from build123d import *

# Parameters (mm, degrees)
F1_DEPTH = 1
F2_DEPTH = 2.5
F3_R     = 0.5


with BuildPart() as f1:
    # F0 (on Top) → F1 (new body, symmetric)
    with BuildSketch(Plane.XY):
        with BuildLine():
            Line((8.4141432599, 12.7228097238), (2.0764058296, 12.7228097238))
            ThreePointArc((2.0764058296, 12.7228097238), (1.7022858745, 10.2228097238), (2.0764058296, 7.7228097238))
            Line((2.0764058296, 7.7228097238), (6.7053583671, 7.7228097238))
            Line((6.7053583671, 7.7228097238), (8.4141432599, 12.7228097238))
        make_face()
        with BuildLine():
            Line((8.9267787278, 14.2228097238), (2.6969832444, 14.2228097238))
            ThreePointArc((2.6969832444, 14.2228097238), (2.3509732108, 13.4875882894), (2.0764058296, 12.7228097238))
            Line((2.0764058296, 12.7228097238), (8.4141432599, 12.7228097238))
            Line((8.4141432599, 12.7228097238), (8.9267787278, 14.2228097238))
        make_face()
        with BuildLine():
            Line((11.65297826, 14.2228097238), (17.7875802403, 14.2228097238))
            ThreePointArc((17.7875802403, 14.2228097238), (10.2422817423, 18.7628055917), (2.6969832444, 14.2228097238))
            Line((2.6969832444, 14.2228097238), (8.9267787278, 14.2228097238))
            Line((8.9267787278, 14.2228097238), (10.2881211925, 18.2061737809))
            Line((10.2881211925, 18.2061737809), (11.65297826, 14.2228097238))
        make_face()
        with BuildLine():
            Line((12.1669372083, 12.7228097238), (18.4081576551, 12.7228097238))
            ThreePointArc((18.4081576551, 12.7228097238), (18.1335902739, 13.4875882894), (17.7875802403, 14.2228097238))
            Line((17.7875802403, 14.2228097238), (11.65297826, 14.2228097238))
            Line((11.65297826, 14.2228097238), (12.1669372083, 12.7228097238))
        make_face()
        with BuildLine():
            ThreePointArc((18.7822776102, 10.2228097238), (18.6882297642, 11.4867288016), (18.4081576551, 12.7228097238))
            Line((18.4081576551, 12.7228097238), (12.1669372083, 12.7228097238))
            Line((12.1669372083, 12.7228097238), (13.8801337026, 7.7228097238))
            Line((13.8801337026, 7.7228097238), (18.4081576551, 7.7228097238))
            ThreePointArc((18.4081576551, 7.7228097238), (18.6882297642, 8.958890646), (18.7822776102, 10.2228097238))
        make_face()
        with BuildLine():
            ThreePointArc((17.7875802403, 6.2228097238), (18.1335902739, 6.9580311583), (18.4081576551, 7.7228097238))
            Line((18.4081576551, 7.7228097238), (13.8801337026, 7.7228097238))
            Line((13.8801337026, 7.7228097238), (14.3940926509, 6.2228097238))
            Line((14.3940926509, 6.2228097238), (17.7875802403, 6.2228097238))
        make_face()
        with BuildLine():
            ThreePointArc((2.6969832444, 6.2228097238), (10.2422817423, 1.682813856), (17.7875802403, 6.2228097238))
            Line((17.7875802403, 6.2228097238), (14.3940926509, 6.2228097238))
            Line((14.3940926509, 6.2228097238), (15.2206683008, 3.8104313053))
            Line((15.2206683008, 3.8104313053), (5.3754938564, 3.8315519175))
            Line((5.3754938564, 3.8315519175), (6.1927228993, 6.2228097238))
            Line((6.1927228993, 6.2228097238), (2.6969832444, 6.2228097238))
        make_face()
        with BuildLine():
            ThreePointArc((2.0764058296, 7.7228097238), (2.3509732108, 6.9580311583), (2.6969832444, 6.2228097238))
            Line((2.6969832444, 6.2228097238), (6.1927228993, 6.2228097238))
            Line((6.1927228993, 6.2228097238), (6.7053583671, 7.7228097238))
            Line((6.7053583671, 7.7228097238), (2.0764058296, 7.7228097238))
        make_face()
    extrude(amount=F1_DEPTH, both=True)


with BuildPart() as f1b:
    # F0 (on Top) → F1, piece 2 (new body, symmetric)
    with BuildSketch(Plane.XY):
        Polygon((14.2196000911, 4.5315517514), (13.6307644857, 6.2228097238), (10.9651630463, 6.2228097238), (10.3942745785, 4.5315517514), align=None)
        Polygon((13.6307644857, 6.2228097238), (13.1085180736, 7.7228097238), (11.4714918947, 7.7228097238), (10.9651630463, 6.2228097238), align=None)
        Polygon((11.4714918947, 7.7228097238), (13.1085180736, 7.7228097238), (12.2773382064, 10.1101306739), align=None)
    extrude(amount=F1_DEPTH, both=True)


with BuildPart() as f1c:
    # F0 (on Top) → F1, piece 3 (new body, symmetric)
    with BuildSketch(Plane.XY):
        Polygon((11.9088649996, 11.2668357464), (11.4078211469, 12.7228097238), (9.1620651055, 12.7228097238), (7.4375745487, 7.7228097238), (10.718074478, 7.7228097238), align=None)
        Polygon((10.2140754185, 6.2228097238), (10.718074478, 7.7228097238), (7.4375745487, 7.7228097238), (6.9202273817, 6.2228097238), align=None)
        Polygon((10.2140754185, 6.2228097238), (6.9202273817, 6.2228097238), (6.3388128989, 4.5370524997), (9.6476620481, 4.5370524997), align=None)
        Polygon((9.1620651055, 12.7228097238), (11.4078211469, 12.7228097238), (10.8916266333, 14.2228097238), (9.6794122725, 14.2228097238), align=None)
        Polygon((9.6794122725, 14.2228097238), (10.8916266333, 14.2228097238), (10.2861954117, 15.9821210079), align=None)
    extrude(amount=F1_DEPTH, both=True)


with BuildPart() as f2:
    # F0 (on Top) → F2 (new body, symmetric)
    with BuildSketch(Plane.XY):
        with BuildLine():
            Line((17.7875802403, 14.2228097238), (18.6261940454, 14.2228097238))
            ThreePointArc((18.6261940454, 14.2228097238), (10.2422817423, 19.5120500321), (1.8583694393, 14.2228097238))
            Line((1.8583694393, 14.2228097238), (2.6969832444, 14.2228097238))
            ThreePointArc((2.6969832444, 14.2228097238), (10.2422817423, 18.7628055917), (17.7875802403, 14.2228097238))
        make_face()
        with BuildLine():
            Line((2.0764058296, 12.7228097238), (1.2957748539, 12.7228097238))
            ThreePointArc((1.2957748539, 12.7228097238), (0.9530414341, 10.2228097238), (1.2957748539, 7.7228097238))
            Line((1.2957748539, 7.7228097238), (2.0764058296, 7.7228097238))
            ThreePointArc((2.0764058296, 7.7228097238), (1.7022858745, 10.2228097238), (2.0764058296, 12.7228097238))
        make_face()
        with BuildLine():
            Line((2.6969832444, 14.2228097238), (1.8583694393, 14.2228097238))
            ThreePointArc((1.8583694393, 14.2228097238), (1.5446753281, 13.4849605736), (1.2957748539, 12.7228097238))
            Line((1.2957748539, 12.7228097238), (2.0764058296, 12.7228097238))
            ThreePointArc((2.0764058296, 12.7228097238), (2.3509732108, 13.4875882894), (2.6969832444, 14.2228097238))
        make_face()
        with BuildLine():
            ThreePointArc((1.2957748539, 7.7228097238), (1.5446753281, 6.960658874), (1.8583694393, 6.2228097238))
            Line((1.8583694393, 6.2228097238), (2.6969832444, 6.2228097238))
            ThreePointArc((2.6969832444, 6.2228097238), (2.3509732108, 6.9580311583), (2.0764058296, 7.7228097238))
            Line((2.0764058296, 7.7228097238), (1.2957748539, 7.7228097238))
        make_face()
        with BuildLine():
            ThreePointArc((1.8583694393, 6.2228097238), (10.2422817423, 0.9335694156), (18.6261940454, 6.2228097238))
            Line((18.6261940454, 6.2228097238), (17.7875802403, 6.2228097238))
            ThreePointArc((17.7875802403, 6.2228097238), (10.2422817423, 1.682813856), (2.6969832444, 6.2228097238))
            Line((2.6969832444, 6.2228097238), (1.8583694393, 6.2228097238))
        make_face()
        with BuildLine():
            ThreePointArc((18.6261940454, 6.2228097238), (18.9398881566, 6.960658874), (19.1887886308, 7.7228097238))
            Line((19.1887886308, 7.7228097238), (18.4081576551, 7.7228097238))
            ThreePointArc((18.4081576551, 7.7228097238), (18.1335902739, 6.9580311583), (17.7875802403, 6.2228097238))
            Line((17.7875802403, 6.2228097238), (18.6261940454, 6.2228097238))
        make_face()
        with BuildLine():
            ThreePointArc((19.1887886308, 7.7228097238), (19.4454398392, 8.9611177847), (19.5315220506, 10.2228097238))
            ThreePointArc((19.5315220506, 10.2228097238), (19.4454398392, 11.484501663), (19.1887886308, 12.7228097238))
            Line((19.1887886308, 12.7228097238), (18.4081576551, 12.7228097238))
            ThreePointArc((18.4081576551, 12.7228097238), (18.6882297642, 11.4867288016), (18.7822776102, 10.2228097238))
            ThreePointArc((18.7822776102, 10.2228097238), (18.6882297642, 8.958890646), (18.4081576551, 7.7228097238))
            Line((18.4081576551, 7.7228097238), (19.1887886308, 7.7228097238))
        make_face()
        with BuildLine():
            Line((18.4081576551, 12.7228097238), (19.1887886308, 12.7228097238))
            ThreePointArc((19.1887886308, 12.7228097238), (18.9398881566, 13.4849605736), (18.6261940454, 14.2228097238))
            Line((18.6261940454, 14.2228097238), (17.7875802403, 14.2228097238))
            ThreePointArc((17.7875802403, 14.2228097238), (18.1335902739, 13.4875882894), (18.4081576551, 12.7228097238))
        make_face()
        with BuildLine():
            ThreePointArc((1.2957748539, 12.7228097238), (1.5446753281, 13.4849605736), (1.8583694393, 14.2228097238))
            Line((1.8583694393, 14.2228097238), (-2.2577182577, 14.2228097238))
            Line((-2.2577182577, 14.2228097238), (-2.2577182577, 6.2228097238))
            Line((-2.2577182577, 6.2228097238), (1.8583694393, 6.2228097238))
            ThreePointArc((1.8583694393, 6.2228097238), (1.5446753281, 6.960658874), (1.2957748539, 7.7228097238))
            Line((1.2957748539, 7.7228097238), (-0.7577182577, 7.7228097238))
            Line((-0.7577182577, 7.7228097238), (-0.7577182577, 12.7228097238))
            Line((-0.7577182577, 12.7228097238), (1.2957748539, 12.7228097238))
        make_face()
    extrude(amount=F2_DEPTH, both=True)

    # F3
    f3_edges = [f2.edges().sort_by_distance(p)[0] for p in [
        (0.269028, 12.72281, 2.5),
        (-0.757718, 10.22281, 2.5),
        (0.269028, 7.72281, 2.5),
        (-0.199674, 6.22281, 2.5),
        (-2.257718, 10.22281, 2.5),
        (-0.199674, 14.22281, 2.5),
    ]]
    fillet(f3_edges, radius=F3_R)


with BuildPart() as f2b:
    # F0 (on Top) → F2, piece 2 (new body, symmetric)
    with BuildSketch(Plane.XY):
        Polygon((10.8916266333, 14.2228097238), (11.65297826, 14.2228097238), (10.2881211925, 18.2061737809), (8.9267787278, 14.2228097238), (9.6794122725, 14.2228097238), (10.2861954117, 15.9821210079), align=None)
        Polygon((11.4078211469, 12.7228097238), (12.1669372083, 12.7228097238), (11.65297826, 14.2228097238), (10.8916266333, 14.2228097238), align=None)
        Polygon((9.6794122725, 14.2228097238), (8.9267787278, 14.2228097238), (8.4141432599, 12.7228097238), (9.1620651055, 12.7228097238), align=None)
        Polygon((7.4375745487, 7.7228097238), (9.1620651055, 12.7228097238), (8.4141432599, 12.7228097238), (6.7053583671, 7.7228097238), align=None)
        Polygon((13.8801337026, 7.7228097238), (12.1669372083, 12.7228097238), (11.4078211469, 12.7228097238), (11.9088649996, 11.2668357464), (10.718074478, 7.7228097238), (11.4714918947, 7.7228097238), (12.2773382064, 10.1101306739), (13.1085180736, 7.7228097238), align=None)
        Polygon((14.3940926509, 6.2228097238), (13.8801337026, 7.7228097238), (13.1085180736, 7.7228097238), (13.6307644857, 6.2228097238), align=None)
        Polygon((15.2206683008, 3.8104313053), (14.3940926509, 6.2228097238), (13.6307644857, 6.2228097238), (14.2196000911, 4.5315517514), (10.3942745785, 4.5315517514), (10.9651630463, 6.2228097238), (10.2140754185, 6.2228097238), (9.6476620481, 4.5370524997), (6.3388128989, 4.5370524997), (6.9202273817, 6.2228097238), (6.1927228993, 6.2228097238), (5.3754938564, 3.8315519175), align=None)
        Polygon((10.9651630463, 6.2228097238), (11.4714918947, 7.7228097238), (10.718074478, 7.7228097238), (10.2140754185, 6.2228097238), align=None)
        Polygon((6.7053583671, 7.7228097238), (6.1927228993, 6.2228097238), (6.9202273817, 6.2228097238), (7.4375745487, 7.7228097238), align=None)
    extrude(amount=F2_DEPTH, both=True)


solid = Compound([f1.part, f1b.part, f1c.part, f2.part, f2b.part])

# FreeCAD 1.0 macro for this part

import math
import FreeCAD as App
import Part
import Sketcher


def edges_at(feature, points):
    """Names of the edges that pass closest to the given points."""
    edges = feature.Shape.Edges
    near = lambda p: min(range(len(edges)), key=lambda i: edges[i].distToShape(Part.Vertex(*p))[0])
    return sorted({f"Edge{near(p) + 1}" for p in points})

doc = App.newDocument("Part")
body = doc.addObject("PartDesign::Body", "Body")

# Sketch on XY plane
sketch1 = body.newObject("Sketcher::SketchObject", "Sketch")
sketch1.AttachmentSupport = (doc.getObject("XY_Plane"), [""])
sketch1.MapMode = "FlatFace"
sketch1.addGeometry([
    Part.ArcOfCircle(Part.Circle(App.Vector(10.2, 10.2, 0), App.Vector(0, 0, 1), 8.5), math.radians(163), math.radians(197)),  # 0
    Part.ArcOfCircle(Part.Circle(App.Vector(10.2, 10.2, 0), App.Vector(0, 0, 1), 8.5), math.radians(-162.98), math.radians(-152.07)),  # 1
    Part.ArcOfCircle(Part.Circle(App.Vector(10.2, 10.2, 0), App.Vector(0, 0, 1), 8.5), math.radians(-152), math.radians(-28)),  # 2
    Part.ArcOfCircle(Part.Circle(App.Vector(10.2, 10.2, 0), App.Vector(0, 0, 1), 8.5), math.radians(-27.93), math.radians(-17.02)),  # 3
    Part.ArcOfCircle(Part.Circle(App.Vector(10.2, 10.2, 0), App.Vector(0, 0, 1), 8.5), math.radians(-17.02), math.radians(0)),  # 4
    Part.ArcOfCircle(Part.Circle(App.Vector(10.2, 10.2, 0), App.Vector(0, 0, 1), 8.5), math.radians(0), math.radians(17.02)),  # 5
    Part.ArcOfCircle(Part.Circle(App.Vector(10.2, 10.2, 0), App.Vector(0, 0, 1), 8.5), math.radians(17.02), math.radians(27.93)),  # 6
    Part.ArcOfCircle(Part.Circle(App.Vector(10.2, 10.2, 0), App.Vector(0, 0, 1), 8.5), math.radians(28), math.radians(152)),  # 7
    Part.ArcOfCircle(Part.Circle(App.Vector(10.2, 10.2, 0), App.Vector(0, 0, 1), 8.5), math.radians(152.07), math.radians(162.98)),  # 8
    Part.LineSegment(App.Vector(6.7, 7.7, 0), App.Vector(8.4, 12.7, 0)),  # 9
    Part.LineSegment(App.Vector(8.4, 12.7, 0), App.Vector(8.9, 14.2, 0)),  # 10
    Part.LineSegment(App.Vector(8.9, 14.2, 0), App.Vector(10.3, 18.2, 0)),  # 11
    Part.LineSegment(App.Vector(10.3, 18.2, 0), App.Vector(11.7, 14.2, 0)),  # 12
    Part.LineSegment(App.Vector(11.7, 14.2, 0), App.Vector(12.2, 12.7, 0)),  # 13
    Part.LineSegment(App.Vector(12.2, 12.7, 0), App.Vector(13.9, 7.7, 0)),  # 14
    Part.LineSegment(App.Vector(13.9, 7.7, 0), App.Vector(14.4, 6.2, 0)),  # 15
    Part.LineSegment(App.Vector(14.4, 6.2, 0), App.Vector(15.2, 3.8, 0)),  # 16
    Part.LineSegment(App.Vector(15.2, 3.8, 0), App.Vector(5.4, 3.8, 0)),  # 17
    Part.LineSegment(App.Vector(5.4, 3.8, 0), App.Vector(6.2, 6.2, 0)),  # 18
    Part.LineSegment(App.Vector(6.2, 6.2, 0), App.Vector(6.7, 7.7, 0)),  # 19
], False)
sketch1.addConstraint([
    Sketcher.Constraint("Tangent", 0, 2, 1, 1),
    Sketcher.Constraint("Tangent", 1, 2, 2, 1),
    Sketcher.Constraint("Tangent", 2, 2, 3, 1),
    Sketcher.Constraint("Tangent", 3, 2, 4, 1),
    Sketcher.Constraint("Tangent", 4, 2, 5, 1),
    Sketcher.Constraint("Tangent", 5, 2, 6, 1),
    Sketcher.Constraint("Tangent", 6, 2, 7, 1),
    Sketcher.Constraint("Tangent", 7, 2, 8, 1),
    Sketcher.Constraint("Tangent", 8, 2, 0, 1),
    Sketcher.Constraint("Coincident", 9, 2, 10, 1),
    Sketcher.Constraint("Coincident", 10, 2, 11, 1),
    Sketcher.Constraint("Coincident", 11, 2, 12, 1),
    Sketcher.Constraint("Coincident", 12, 2, 13, 1),
    Sketcher.Constraint("Coincident", 13, 2, 14, 1),
    Sketcher.Constraint("Coincident", 14, 2, 15, 1),
    Sketcher.Constraint("Coincident", 15, 2, 16, 1),
    Sketcher.Constraint("Coincident", 16, 2, 17, 1),
    Sketcher.Constraint("Coincident", 17, 2, 18, 1),
    Sketcher.Constraint("Coincident", 18, 2, 19, 1),
    Sketcher.Constraint("Coincident", 19, 2, 9, 1),
    Sketcher.Constraint("Coincident", 2, 3, 0, 3),
    Sketcher.Constraint("Coincident", 4, 3, 0, 3),
    Sketcher.Constraint("Coincident", 6, 3, 0, 3),
    Sketcher.Constraint("Parallel", 9, 10),
    Sketcher.Constraint("Parallel", 10, 11),
    Sketcher.Constraint("Parallel", 12, 13),
    Sketcher.Constraint("Parallel", 13, 14),
    Sketcher.Constraint("Parallel", 14, 15),
    Sketcher.Constraint("Parallel", 15, 16),
    Sketcher.Constraint("Parallel", 11, 18),
    Sketcher.Constraint("Parallel", 18, 19),
    Sketcher.Constraint("Horizontal", 1, 2, 2, 2),
    Sketcher.Constraint("Horizontal", 0, 2, 3, 2),
    Sketcher.Constraint("Horizontal", 8, 3, 4, 2),
    Sketcher.Constraint("Horizontal", 6, 2, 7, 2),
    Sketcher.Constraint("Horizontal", 5, 2, 8, 2),
    Sketcher.Constraint("Horizontal", 8, 2, 9, 2),
    Sketcher.Constraint("Horizontal", 7, 2, 10, 2),
    Sketcher.Constraint("Horizontal", 10, 2, 12, 2),
    Sketcher.Constraint("Horizontal", 9, 2, 13, 2),
    Sketcher.Constraint("Horizontal", 3, 2, 14, 2),
    Sketcher.Constraint("Horizontal", 2, 2, 15, 2),
    Sketcher.Constraint("Horizontal", 15, 2, 18, 2),
    Sketcher.Constraint("Horizontal", 14, 2, 19, 2),
    Sketcher.Constraint("Vertical", 3, 2, 5, 2),
    Sketcher.Constraint("Vertical", 2, 2, 6, 2),
    Sketcher.Constraint("DistanceY", 1, 2, 3, 3, 4.0),
    Sketcher.Constraint("DistanceY", 3, 2, 5, 2, 5.0),
    Sketcher.Constraint("Radius", 0, 8.539996),
    Sketcher.Constraint("DistanceX", 10, 2, 12, 2, 2.7262),
    Sketcher.Constraint("Distance", 10, 1.58518),
    Sketcher.Constraint("Distance", 13, 1.585608),
    Sketcher.Constraint("Distance", 16, 2.550058),
    Sketcher.Constraint("Distance", 18, 2.527049),
    Sketcher.Constraint("DistanceX", -1, 1, 0, 3, 10.242282),
    Sketcher.Constraint("DistanceY", -1, 1, 0, 3, 10.22281),
    Sketcher.Constraint("DistanceX", -1, 1, 10, 2, 8.926779),
])
pad1 = body.newObject("PartDesign::Pad", "Pad")
pad1.Profile = sketch1
pad1.Length = 2
pad1.Midplane = True
body2 = doc.addObject("PartDesign::Body", "Body001")

# Sketch on XY plane
sketch2 = body2.newObject("Sketcher::SketchObject", "Sketch001")
sketch2.AttachmentSupport = (doc.getObject("XY_Plane001"), [""])
sketch2.MapMode = "FlatFace"
sketch2.addGeometry([
    Part.LineSegment(App.Vector(14.2, 4.5, 0), App.Vector(13.6, 6.2, 0)),  # 0
    Part.LineSegment(App.Vector(13.6, 6.2, 0), App.Vector(13.1, 7.7, 0)),  # 1
    Part.LineSegment(App.Vector(13.1, 7.7, 0), App.Vector(12.3, 10.1, 0)),  # 2
    Part.LineSegment(App.Vector(12.3, 10.1, 0), App.Vector(11.5, 7.7, 0)),  # 3
    Part.LineSegment(App.Vector(11.5, 7.7, 0), App.Vector(11, 6.2, 0)),  # 4
    Part.LineSegment(App.Vector(11, 6.2, 0), App.Vector(10.4, 4.5, 0)),  # 5
    Part.LineSegment(App.Vector(10.4, 4.5, 0), App.Vector(14.2, 4.5, 0)),  # 6
], False)
sketch2.addConstraint([
    Sketcher.Constraint("Coincident", 0, 2, 1, 1),
    Sketcher.Constraint("Coincident", 1, 2, 2, 1),
    Sketcher.Constraint("Coincident", 2, 2, 3, 1),
    Sketcher.Constraint("Coincident", 3, 2, 4, 1),
    Sketcher.Constraint("Coincident", 4, 2, 5, 1),
    Sketcher.Constraint("Coincident", 5, 2, 6, 1),
    Sketcher.Constraint("Coincident", 6, 2, 0, 1),
    Sketcher.Constraint("Horizontal", 6),
    Sketcher.Constraint("Parallel", 0, 1),
    Sketcher.Constraint("Parallel", 1, 2),
    Sketcher.Constraint("Parallel", 3, 4),
    Sketcher.Constraint("Parallel", 4, 5),
    Sketcher.Constraint("Horizontal", 1, 2, 3, 2),
    Sketcher.Constraint("Horizontal", 0, 2, 4, 2),
    Sketcher.Constraint("DistanceY", 0, 2, 1, 2, 1.5),
    Sketcher.Constraint("DistanceX", -1, 1, 6, 2, 14.2196),
    Sketcher.Constraint("DistanceX", 4, 2, 0, 2, 2.665601),
    Sketcher.Constraint("Distance", 3, 2.519661),
    Sketcher.Constraint("Distance", 4, 1.583152),
    Sketcher.Constraint("Distance", 5, 1.785012),
    Sketcher.Constraint("DistanceY", -1, 1, 0, 2, 6.22281),
])
pad2 = body2.newObject("PartDesign::Pad", "Pad001")
pad2.Profile = sketch2
pad2.Length = 2
pad2.Midplane = True
body3 = doc.addObject("PartDesign::Body", "Body002")

# Sketch on XY plane
sketch3 = body3.newObject("Sketcher::SketchObject", "Sketch002")
sketch3.AttachmentSupport = (doc.getObject("XY_Plane002"), [""])
sketch3.MapMode = "FlatFace"
sketch3.addGeometry([
    Part.LineSegment(App.Vector(11.9, 11.3, 0), App.Vector(11.4, 12.7, 0)),  # 0
    Part.LineSegment(App.Vector(11.4, 12.7, 0), App.Vector(10.9, 14.2, 0)),  # 1
    Part.LineSegment(App.Vector(10.9, 14.2, 0), App.Vector(10.3, 16, 0)),  # 2
    Part.LineSegment(App.Vector(10.3, 16, 0), App.Vector(9.7, 14.2, 0)),  # 3
    Part.LineSegment(App.Vector(9.7, 14.2, 0), App.Vector(9.2, 12.7, 0)),  # 4
    Part.LineSegment(App.Vector(9.2, 12.7, 0), App.Vector(7.4, 7.7, 0)),  # 5
    Part.LineSegment(App.Vector(7.4, 7.7, 0), App.Vector(6.9, 6.2, 0)),  # 6
    Part.LineSegment(App.Vector(6.9, 6.2, 0), App.Vector(6.3, 4.5, 0)),  # 7
    Part.LineSegment(App.Vector(6.3, 4.5, 0), App.Vector(9.6, 4.5, 0)),  # 8
    Part.LineSegment(App.Vector(9.6, 4.5, 0), App.Vector(10.2, 6.2, 0)),  # 9
    Part.LineSegment(App.Vector(10.2, 6.2, 0), App.Vector(10.7, 7.7, 0)),  # 10
    Part.LineSegment(App.Vector(10.7, 7.7, 0), App.Vector(11.9, 11.3, 0)),  # 11
], False)
sketch3.addConstraint([
    Sketcher.Constraint("Coincident", 0, 2, 1, 1),
    Sketcher.Constraint("Coincident", 1, 2, 2, 1),
    Sketcher.Constraint("Coincident", 2, 2, 3, 1),
    Sketcher.Constraint("Coincident", 3, 2, 4, 1),
    Sketcher.Constraint("Coincident", 4, 2, 5, 1),
    Sketcher.Constraint("Coincident", 5, 2, 6, 1),
    Sketcher.Constraint("Coincident", 6, 2, 7, 1),
    Sketcher.Constraint("Coincident", 7, 2, 8, 1),
    Sketcher.Constraint("Coincident", 8, 2, 9, 1),
    Sketcher.Constraint("Coincident", 9, 2, 10, 1),
    Sketcher.Constraint("Coincident", 10, 2, 11, 1),
    Sketcher.Constraint("Coincident", 11, 2, 0, 1),
    Sketcher.Constraint("Horizontal", 8),
    Sketcher.Constraint("Parallel", 0, 1),
    Sketcher.Constraint("Parallel", 1, 2),
    Sketcher.Constraint("Parallel", 3, 4),
    Sketcher.Constraint("Parallel", 4, 5),
    Sketcher.Constraint("Parallel", 5, 6),
    Sketcher.Constraint("Parallel", 6, 7),
    Sketcher.Constraint("Parallel", 9, 10),
    Sketcher.Constraint("Parallel", 10, 11),
    Sketcher.Constraint("Horizontal", 1, 2, 3, 2),
    Sketcher.Constraint("Horizontal", 0, 2, 4, 2),
    Sketcher.Constraint("Horizontal", 6, 2, 9, 2),
    Sketcher.Constraint("Horizontal", 5, 2, 10, 2),
    Sketcher.Constraint("Equal", 4, 6),
    Sketcher.Constraint("DistanceY", 5, 2, 4, 2, 5.0),
    Sketcher.Constraint("DistanceY", 6, 2, 3, 2, 8.0),
    Sketcher.Constraint("DistanceX", 9, 2, 10, 2, 0.503999),
    Sketcher.Constraint("DistanceX", 8, 1, 8, 2, 3.308849),
    Sketcher.Constraint("DistanceX", 6, 2, 1, 2, 3.971399),
    Sketcher.Constraint("DistanceX", 7, 2, 3, 2, 3.340599),
    Sketcher.Constraint("DistanceX", 5, 2, 9, 2, 2.776501),
    Sketcher.Constraint("DistanceX", 4, 2, 11, 2, 2.7468),
    Sketcher.Constraint("DistanceX", -1, 1, 0, 2, 11.407821),
    Sketcher.Constraint("DistanceY", -1, 1, 0, 2, 12.72281),
])
pad3 = body3.newObject("PartDesign::Pad", "Pad002")
pad3.Profile = sketch3
pad3.Length = 2
pad3.Midplane = True
body4 = doc.addObject("PartDesign::Body", "Body003")

# Sketch on XY plane
sketch4 = body4.newObject("Sketcher::SketchObject", "Sketch003")
sketch4.AttachmentSupport = (doc.getObject("XY_Plane003"), [""])
sketch4.MapMode = "FlatFace"
sketch4.addGeometry([
    Part.ArcOfCircle(Part.Circle(App.Vector(10.2, 10.2, 0), App.Vector(0, 0, 1), 9.3), math.radians(26), math.radians(154)),  # 0
    Part.LineSegment(App.Vector(1.9, 14.2, 0), App.Vector(-2.3, 14.2, 0)),  # 1
    Part.LineSegment(App.Vector(-2.3, 14.2, 0), App.Vector(-2.3, 6.2, 0)),  # 2
    Part.LineSegment(App.Vector(-2.3, 6.2, 0), App.Vector(1.9, 6.2, 0)),  # 3
    Part.ArcOfCircle(Part.Circle(App.Vector(10.2, 10.2, 0), App.Vector(0, 0, 1), 9.3), math.radians(-154), math.radians(-26)),  # 4
    Part.ArcOfCircle(Part.Circle(App.Vector(10.2, 10.2, 0), App.Vector(0, 0, 1), 9.3), math.radians(-25.51), math.radians(-15.61)),  # 5
    Part.ArcOfCircle(Part.Circle(App.Vector(10.2, 10.2, 0), App.Vector(0, 0, 1), 9.3), math.radians(-15.61), math.radians(0)),  # 6
    Part.ArcOfCircle(Part.Circle(App.Vector(10.2, 10.2, 0), App.Vector(0, 0, 1), 9.3), math.radians(0), math.radians(15.61)),  # 7
    Part.ArcOfCircle(Part.Circle(App.Vector(10.2, 10.2, 0), App.Vector(0, 0, 1), 9.3), math.radians(15.61), math.radians(25.51)),  # 8
    Part.ArcOfCircle(Part.Circle(App.Vector(10.2, 10.2, 0), App.Vector(0, 0, 1), 9.3), math.radians(164), math.radians(196)),  # 9
    Part.LineSegment(App.Vector(1.3, 7.7, 0), App.Vector(-0.8, 7.7, 0)),  # 10
    Part.LineSegment(App.Vector(-0.8, 7.7, 0), App.Vector(-0.8, 12.7, 0)),  # 11
    Part.LineSegment(App.Vector(-0.8, 12.7, 0), App.Vector(1.3, 12.7, 0)),  # 12
    Part.ArcOfCircle(Part.Circle(App.Vector(10.2, 10.2, 0), App.Vector(0, 0, 1), 8.5), math.radians(0), math.radians(17.02)),  # 13
    Part.ArcOfCircle(Part.Circle(App.Vector(10.2, 10.2, 0), App.Vector(0, 0, 1), 8.5), math.radians(-17.02), math.radians(0)),  # 14
    Part.ArcOfCircle(Part.Circle(App.Vector(10.2, 10.2, 0), App.Vector(0, 0, 1), 8.5), math.radians(-27.93), math.radians(-17.02)),  # 15
    Part.ArcOfCircle(Part.Circle(App.Vector(10.2, 10.2, 0), App.Vector(0, 0, 1), 8.5), math.radians(-152), math.radians(-28)),  # 16
    Part.ArcOfCircle(Part.Circle(App.Vector(10.2, 10.2, 0), App.Vector(0, 0, 1), 8.5), math.radians(-162.98), math.radians(-152.07)),  # 17
    Part.ArcOfCircle(Part.Circle(App.Vector(10.2, 10.2, 0), App.Vector(0, 0, 1), 8.5), math.radians(163), math.radians(197)),  # 18
    Part.ArcOfCircle(Part.Circle(App.Vector(10.2, 10.2, 0), App.Vector(0, 0, 1), 8.5), math.radians(152.07), math.radians(162.98)),  # 19
    Part.ArcOfCircle(Part.Circle(App.Vector(10.2, 10.2, 0), App.Vector(0, 0, 1), 8.5), math.radians(28), math.radians(152)),  # 20
    Part.ArcOfCircle(Part.Circle(App.Vector(10.2, 10.2, 0), App.Vector(0, 0, 1), 8.5), math.radians(17.02), math.radians(27.93)),  # 21
], False)
sketch4.addConstraint([
    Sketcher.Constraint("Coincident", 0, 2, 1, 1),
    Sketcher.Constraint("Coincident", 1, 2, 2, 1),
    Sketcher.Constraint("Coincident", 2, 2, 3, 1),
    Sketcher.Constraint("Coincident", 3, 2, 4, 1),
    Sketcher.Constraint("Tangent", 4, 2, 5, 1),
    Sketcher.Constraint("Tangent", 5, 2, 6, 1),
    Sketcher.Constraint("Tangent", 6, 2, 7, 1),
    Sketcher.Constraint("Tangent", 7, 2, 8, 1),
    Sketcher.Constraint("Tangent", 8, 2, 0, 1),
    Sketcher.Constraint("Coincident", 9, 2, 10, 1),
    Sketcher.Constraint("Coincident", 10, 2, 11, 1),
    Sketcher.Constraint("Coincident", 11, 2, 12, 1),
    Sketcher.Constraint("Coincident", 12, 2, 9, 1),
    Sketcher.Constraint("Tangent", 13, 1, 14, 2),
    Sketcher.Constraint("Tangent", 14, 1, 15, 2),
    Sketcher.Constraint("Tangent", 15, 1, 16, 2),
    Sketcher.Constraint("Tangent", 16, 1, 17, 2),
    Sketcher.Constraint("Tangent", 17, 1, 18, 2),
    Sketcher.Constraint("Tangent", 18, 1, 19, 2),
    Sketcher.Constraint("Tangent", 19, 1, 20, 2),
    Sketcher.Constraint("Tangent", 20, 1, 21, 2),
    Sketcher.Constraint("Tangent", 21, 1, 13, 2),
    Sketcher.Constraint("Horizontal", 1),
    Sketcher.Constraint("Vertical", 2),
    Sketcher.Constraint("Horizontal", 3),
    Sketcher.Constraint("Horizontal", 10),
    Sketcher.Constraint("Vertical", 11),
    Sketcher.Constraint("Horizontal", 12),
    Sketcher.Constraint("Coincident", 4, 3, 0, 3),
    Sketcher.Constraint("Coincident", 6, 3, 0, 3),
    Sketcher.Constraint("Coincident", 9, 3, 0, 3),
    Sketcher.Constraint("Coincident", 13, 3, 0, 3),
    Sketcher.Constraint("Coincident", 15, 3, 0, 3),
    Sketcher.Constraint("Coincident", 17, 3, 0, 3),
    Sketcher.Constraint("Coincident", 19, 3, 0, 3),
    Sketcher.Constraint("Equal", 0, 4),
    Sketcher.Constraint("Equal", 8, 9),
    Sketcher.Constraint("Horizontal", 3, 2, 4, 2),
    Sketcher.Constraint("Horizontal", 21, 3, 6, 2),
    Sketcher.Constraint("Horizontal", 1, 2, 8, 2),
    Sketcher.Constraint("Horizontal", 5, 2, 9, 2),
    Sketcher.Constraint("Horizontal", 7, 2, 11, 2),
    Sketcher.Constraint("Horizontal", 6, 2, 13, 1),
    Sketcher.Constraint("Horizontal", 10, 2, 14, 1),
    Sketcher.Constraint("Horizontal", 4, 2, 15, 1),
    Sketcher.Constraint("Horizontal", 15, 1, 16, 1),
    Sketcher.Constraint("Horizontal", 14, 1, 17, 1),
    Sketcher.Constraint("Horizontal", 12, 2, 18, 1),
    Sketcher.Constraint("Horizontal", 8, 2, 19, 1),
    Sketcher.Constraint("Horizontal", 19, 1, 20, 1),
    Sketcher.Constraint("Horizontal", 18, 1, 21, 1),
    Sketcher.Constraint("Vertical", 0, 2, 3, 2),
    Sketcher.Constraint("Vertical", 5, 2, 7, 2),
    Sketcher.Constraint("DistanceY", 2, 2, 2, 1, 8.0),
    Sketcher.Constraint("DistanceY", 11, 1, 11, 2, 5.0),
    Sketcher.Constraint("DistanceX", 1, 2, 5, 3, 12.5),
    Sketcher.Constraint("DistanceX", 2, 2, 10, 2, 1.5),
    Sketcher.Constraint("Radius", 0, 9.28924),
    Sketcher.Constraint("Radius", 13, 8.539996),
    Sketcher.Constraint("DistanceX", -1, 1, 0, 3, 10.242282),
    Sketcher.Constraint("DistanceY", -1, 1, 0, 3, 10.22281),
])
pad4 = body4.newObject("PartDesign::Pad", "Pad003")
pad4.Profile = sketch4
pad4.Length = 5
pad4.Midplane = True
doc.recompute()

fillet = body4.newObject("PartDesign::Fillet", "Fillet")
fillet.Base = (pad4, edges_at(pad4, [
    (0.269, 12.723, 2.5),
    (-0.758, 10.223, 2.5),
    (0.269, 7.723, 2.5),
    (-0.2, 6.223, 2.5),
    (-2.258, 10.223, 2.5),
    (-0.2, 14.223, 2.5),
]))
fillet.Radius = 0.5
body5 = doc.addObject("PartDesign::Body", "Body004")

# Sketch on XY plane
sketch5 = body5.newObject("Sketcher::SketchObject", "Sketch004")
sketch5.AttachmentSupport = (doc.getObject("XY_Plane004"), [""])
sketch5.MapMode = "FlatFace"
sketch5.addGeometry([
    Part.LineSegment(App.Vector(11.7, 14.2, 0), App.Vector(10.3, 18.2, 0)),  # 0
    Part.LineSegment(App.Vector(10.3, 18.2, 0), App.Vector(8.9, 14.2, 0)),  # 1
    Part.LineSegment(App.Vector(8.9, 14.2, 0), App.Vector(8.4, 12.7, 0)),  # 2
    Part.LineSegment(App.Vector(8.4, 12.7, 0), App.Vector(6.7, 7.7, 0)),  # 3
    Part.LineSegment(App.Vector(6.7, 7.7, 0), App.Vector(6.2, 6.2, 0)),  # 4
    Part.LineSegment(App.Vector(6.2, 6.2, 0), App.Vector(5.4, 3.8, 0)),  # 5
    Part.LineSegment(App.Vector(5.4, 3.8, 0), App.Vector(15.2, 3.8, 0)),  # 6
    Part.LineSegment(App.Vector(15.2, 3.8, 0), App.Vector(14.4, 6.2, 0)),  # 7
    Part.LineSegment(App.Vector(14.4, 6.2, 0), App.Vector(13.9, 7.7, 0)),  # 8
    Part.LineSegment(App.Vector(13.9, 7.7, 0), App.Vector(12.2, 12.7, 0)),  # 9
    Part.LineSegment(App.Vector(12.2, 12.7, 0), App.Vector(11.7, 14.2, 0)),  # 10
    Part.LineSegment(App.Vector(7.4, 7.7, 0), App.Vector(9.2, 12.7, 0)),  # 11
    Part.LineSegment(App.Vector(9.2, 12.7, 0), App.Vector(9.7, 14.2, 0)),  # 12
    Part.LineSegment(App.Vector(9.7, 14.2, 0), App.Vector(10.3, 16, 0)),  # 13
    Part.LineSegment(App.Vector(10.3, 16, 0), App.Vector(10.9, 14.2, 0)),  # 14
    Part.LineSegment(App.Vector(10.9, 14.2, 0), App.Vector(11.4, 12.7, 0)),  # 15
    Part.LineSegment(App.Vector(11.4, 12.7, 0), App.Vector(11.9, 11.3, 0)),  # 16
    Part.LineSegment(App.Vector(11.9, 11.3, 0), App.Vector(10.7, 7.7, 0)),  # 17
    Part.LineSegment(App.Vector(10.7, 7.7, 0), App.Vector(10.2, 6.2, 0)),  # 18
    Part.LineSegment(App.Vector(10.2, 6.2, 0), App.Vector(9.6, 4.5, 0)),  # 19
    Part.LineSegment(App.Vector(9.6, 4.5, 0), App.Vector(6.3, 4.5, 0)),  # 20
    Part.LineSegment(App.Vector(6.3, 4.5, 0), App.Vector(6.9, 6.2, 0)),  # 21
    Part.LineSegment(App.Vector(6.9, 6.2, 0), App.Vector(7.4, 7.7, 0)),  # 22
    Part.LineSegment(App.Vector(11.5, 7.7, 0), App.Vector(12.3, 10.1, 0)),  # 23
    Part.LineSegment(App.Vector(12.3, 10.1, 0), App.Vector(13.1, 7.7, 0)),  # 24
    Part.LineSegment(App.Vector(13.1, 7.7, 0), App.Vector(13.6, 6.2, 0)),  # 25
    Part.LineSegment(App.Vector(13.6, 6.2, 0), App.Vector(14.2, 4.5, 0)),  # 26
    Part.LineSegment(App.Vector(14.2, 4.5, 0), App.Vector(10.4, 4.5, 0)),  # 27
    Part.LineSegment(App.Vector(10.4, 4.5, 0), App.Vector(11, 6.2, 0)),  # 28
    Part.LineSegment(App.Vector(11, 6.2, 0), App.Vector(11.5, 7.7, 0)),  # 29
], False)
sketch5.addConstraint([
    Sketcher.Constraint("Coincident", 0, 2, 1, 1),
    Sketcher.Constraint("Coincident", 1, 2, 2, 1),
    Sketcher.Constraint("Coincident", 2, 2, 3, 1),
    Sketcher.Constraint("Coincident", 3, 2, 4, 1),
    Sketcher.Constraint("Coincident", 4, 2, 5, 1),
    Sketcher.Constraint("Coincident", 5, 2, 6, 1),
    Sketcher.Constraint("Coincident", 6, 2, 7, 1),
    Sketcher.Constraint("Coincident", 7, 2, 8, 1),
    Sketcher.Constraint("Coincident", 8, 2, 9, 1),
    Sketcher.Constraint("Coincident", 9, 2, 10, 1),
    Sketcher.Constraint("Coincident", 10, 2, 0, 1),
    Sketcher.Constraint("Coincident", 11, 2, 12, 1),
    Sketcher.Constraint("Coincident", 12, 2, 13, 1),
    Sketcher.Constraint("Coincident", 13, 2, 14, 1),
    Sketcher.Constraint("Coincident", 14, 2, 15, 1),
    Sketcher.Constraint("Coincident", 15, 2, 16, 1),
    Sketcher.Constraint("Coincident", 16, 2, 17, 1),
    Sketcher.Constraint("Coincident", 17, 2, 18, 1),
    Sketcher.Constraint("Coincident", 18, 2, 19, 1),
    Sketcher.Constraint("Coincident", 19, 2, 20, 1),
    Sketcher.Constraint("Coincident", 20, 2, 21, 1),
    Sketcher.Constraint("Coincident", 21, 2, 22, 1),
    Sketcher.Constraint("Coincident", 22, 2, 11, 1),
    Sketcher.Constraint("Coincident", 23, 2, 24, 1),
    Sketcher.Constraint("Coincident", 24, 2, 25, 1),
    Sketcher.Constraint("Coincident", 25, 2, 26, 1),
    Sketcher.Constraint("Coincident", 26, 2, 27, 1),
    Sketcher.Constraint("Coincident", 27, 2, 28, 1),
    Sketcher.Constraint("Coincident", 28, 2, 29, 1),
    Sketcher.Constraint("Coincident", 29, 2, 23, 1),
    Sketcher.Constraint("Horizontal", 20),
    Sketcher.Constraint("Horizontal", 27),
    Sketcher.Constraint("Parallel", 1, 2),
    Sketcher.Constraint("Parallel", 2, 3),
    Sketcher.Constraint("Parallel", 3, 4),
    Sketcher.Constraint("Parallel", 4, 5),
    Sketcher.Constraint("Parallel", 0, 7),
    Sketcher.Constraint("Parallel", 7, 8),
    Sketcher.Constraint("Parallel", 8, 9),
    Sketcher.Constraint("Parallel", 9, 10),
    Sketcher.Constraint("Parallel", 11, 12),
    Sketcher.Constraint("Parallel", 12, 13),
    Sketcher.Constraint("Parallel", 14, 15),
    Sketcher.Constraint("Parallel", 15, 16),
    Sketcher.Constraint("Parallel", 17, 18),
    Sketcher.Constraint("Parallel", 18, 19),
    Sketcher.Constraint("Parallel", 13, 21),
    Sketcher.Constraint("Parallel", 21, 22),
    Sketcher.Constraint("Parallel", 24, 25),
    Sketcher.Constraint("Parallel", 25, 26),
    Sketcher.Constraint("Parallel", 23, 28),
    Sketcher.Constraint("Parallel", 28, 29),
    Sketcher.Constraint("Horizontal", 4, 2, 7, 2),
    Sketcher.Constraint("Horizontal", 3, 2, 8, 2),
    Sketcher.Constraint("Horizontal", 2, 2, 9, 2),
    Sketcher.Constraint("Horizontal", 1, 2, 10, 2),
    Sketcher.Constraint("Horizontal", 9, 2, 11, 2),
    Sketcher.Constraint("Horizontal", 10, 2, 12, 2),
    Sketcher.Constraint("Horizontal", 12, 2, 14, 2),
    Sketcher.Constraint("Horizontal", 11, 2, 15, 2),
    Sketcher.Constraint("Horizontal", 8, 2, 17, 2),
    Sketcher.Constraint("Horizontal", 7, 2, 18, 2),
    Sketcher.Constraint("Horizontal", 18, 2, 21, 2),
    Sketcher.Constraint("Horizontal", 17, 2, 22, 2),
    Sketcher.Constraint("Horizontal", 22, 2, 24, 2),
    Sketcher.Constraint("Horizontal", 21, 2, 25, 2),
    Sketcher.Constraint("Horizontal", 25, 2, 28, 2),
    Sketcher.Constraint("Horizontal", 24, 2, 29, 2),
    Sketcher.Constraint("Equal", 2, 4),
    Sketcher.Constraint("DistanceY", 3, 2, 2, 2, 5.0),
    Sketcher.Constraint("DistanceY", 4, 2, 1, 2, 8.0),
    Sketcher.Constraint("DistanceX", 18, 2, 17, 2, 0.503999),
    Sketcher.Constraint("DistanceX", 20, 2, 20, 1, 3.308849),
    Sketcher.Constraint("DistanceX", -1, 1, 26, 2, 14.2196),
    Sketcher.Constraint("DistanceX", 4, 2, 0, 2, 4.095398),
    Sketcher.Constraint("DistanceX", 5, 2, 7, 2, 9.018599),
    Sketcher.Constraint("DistanceX", 1, 2, 10, 2, 2.7262),
    Sketcher.Constraint("DistanceX", 11, 2, 16, 2, 2.7468),
    Sketcher.Constraint("DistanceY", 5, 2, 19, 2, 0.705501),
    Sketcher.Constraint("DistanceX", 22, 2, 18, 2, 2.776501),
    Sketcher.Constraint("DistanceX", 9, 2, 23, 2, 0.110401),
    Sketcher.Constraint("DistanceY", 27, 2, 19, 2, 0.005501),
    Sketcher.Constraint("DistanceX", 18, 2, 27, 2, 0.180199),
    Sketcher.Constraint("DistanceX", 19, 2, 28, 2, 1.317501),
    Sketcher.Constraint("Distance", 5, 2.527049),
    Sketcher.Constraint("Distance", 7, 2.550058),
    Sketcher.Constraint("Distance", 13, 1.861011),
    Sketcher.Constraint("Distance", 23, 2.519661),
    Sketcher.Constraint("DistanceX", 27, 2, 27, 1, 3.825326),
    Sketcher.Constraint("DistanceY", -1, 1, 1, 2, 14.22281),
])
pad5 = body5.newObject("PartDesign::Pad", "Pad004")
pad5.Profile = sketch5
pad5.Length = 5
pad5.Midplane = True

doc.recompute()
